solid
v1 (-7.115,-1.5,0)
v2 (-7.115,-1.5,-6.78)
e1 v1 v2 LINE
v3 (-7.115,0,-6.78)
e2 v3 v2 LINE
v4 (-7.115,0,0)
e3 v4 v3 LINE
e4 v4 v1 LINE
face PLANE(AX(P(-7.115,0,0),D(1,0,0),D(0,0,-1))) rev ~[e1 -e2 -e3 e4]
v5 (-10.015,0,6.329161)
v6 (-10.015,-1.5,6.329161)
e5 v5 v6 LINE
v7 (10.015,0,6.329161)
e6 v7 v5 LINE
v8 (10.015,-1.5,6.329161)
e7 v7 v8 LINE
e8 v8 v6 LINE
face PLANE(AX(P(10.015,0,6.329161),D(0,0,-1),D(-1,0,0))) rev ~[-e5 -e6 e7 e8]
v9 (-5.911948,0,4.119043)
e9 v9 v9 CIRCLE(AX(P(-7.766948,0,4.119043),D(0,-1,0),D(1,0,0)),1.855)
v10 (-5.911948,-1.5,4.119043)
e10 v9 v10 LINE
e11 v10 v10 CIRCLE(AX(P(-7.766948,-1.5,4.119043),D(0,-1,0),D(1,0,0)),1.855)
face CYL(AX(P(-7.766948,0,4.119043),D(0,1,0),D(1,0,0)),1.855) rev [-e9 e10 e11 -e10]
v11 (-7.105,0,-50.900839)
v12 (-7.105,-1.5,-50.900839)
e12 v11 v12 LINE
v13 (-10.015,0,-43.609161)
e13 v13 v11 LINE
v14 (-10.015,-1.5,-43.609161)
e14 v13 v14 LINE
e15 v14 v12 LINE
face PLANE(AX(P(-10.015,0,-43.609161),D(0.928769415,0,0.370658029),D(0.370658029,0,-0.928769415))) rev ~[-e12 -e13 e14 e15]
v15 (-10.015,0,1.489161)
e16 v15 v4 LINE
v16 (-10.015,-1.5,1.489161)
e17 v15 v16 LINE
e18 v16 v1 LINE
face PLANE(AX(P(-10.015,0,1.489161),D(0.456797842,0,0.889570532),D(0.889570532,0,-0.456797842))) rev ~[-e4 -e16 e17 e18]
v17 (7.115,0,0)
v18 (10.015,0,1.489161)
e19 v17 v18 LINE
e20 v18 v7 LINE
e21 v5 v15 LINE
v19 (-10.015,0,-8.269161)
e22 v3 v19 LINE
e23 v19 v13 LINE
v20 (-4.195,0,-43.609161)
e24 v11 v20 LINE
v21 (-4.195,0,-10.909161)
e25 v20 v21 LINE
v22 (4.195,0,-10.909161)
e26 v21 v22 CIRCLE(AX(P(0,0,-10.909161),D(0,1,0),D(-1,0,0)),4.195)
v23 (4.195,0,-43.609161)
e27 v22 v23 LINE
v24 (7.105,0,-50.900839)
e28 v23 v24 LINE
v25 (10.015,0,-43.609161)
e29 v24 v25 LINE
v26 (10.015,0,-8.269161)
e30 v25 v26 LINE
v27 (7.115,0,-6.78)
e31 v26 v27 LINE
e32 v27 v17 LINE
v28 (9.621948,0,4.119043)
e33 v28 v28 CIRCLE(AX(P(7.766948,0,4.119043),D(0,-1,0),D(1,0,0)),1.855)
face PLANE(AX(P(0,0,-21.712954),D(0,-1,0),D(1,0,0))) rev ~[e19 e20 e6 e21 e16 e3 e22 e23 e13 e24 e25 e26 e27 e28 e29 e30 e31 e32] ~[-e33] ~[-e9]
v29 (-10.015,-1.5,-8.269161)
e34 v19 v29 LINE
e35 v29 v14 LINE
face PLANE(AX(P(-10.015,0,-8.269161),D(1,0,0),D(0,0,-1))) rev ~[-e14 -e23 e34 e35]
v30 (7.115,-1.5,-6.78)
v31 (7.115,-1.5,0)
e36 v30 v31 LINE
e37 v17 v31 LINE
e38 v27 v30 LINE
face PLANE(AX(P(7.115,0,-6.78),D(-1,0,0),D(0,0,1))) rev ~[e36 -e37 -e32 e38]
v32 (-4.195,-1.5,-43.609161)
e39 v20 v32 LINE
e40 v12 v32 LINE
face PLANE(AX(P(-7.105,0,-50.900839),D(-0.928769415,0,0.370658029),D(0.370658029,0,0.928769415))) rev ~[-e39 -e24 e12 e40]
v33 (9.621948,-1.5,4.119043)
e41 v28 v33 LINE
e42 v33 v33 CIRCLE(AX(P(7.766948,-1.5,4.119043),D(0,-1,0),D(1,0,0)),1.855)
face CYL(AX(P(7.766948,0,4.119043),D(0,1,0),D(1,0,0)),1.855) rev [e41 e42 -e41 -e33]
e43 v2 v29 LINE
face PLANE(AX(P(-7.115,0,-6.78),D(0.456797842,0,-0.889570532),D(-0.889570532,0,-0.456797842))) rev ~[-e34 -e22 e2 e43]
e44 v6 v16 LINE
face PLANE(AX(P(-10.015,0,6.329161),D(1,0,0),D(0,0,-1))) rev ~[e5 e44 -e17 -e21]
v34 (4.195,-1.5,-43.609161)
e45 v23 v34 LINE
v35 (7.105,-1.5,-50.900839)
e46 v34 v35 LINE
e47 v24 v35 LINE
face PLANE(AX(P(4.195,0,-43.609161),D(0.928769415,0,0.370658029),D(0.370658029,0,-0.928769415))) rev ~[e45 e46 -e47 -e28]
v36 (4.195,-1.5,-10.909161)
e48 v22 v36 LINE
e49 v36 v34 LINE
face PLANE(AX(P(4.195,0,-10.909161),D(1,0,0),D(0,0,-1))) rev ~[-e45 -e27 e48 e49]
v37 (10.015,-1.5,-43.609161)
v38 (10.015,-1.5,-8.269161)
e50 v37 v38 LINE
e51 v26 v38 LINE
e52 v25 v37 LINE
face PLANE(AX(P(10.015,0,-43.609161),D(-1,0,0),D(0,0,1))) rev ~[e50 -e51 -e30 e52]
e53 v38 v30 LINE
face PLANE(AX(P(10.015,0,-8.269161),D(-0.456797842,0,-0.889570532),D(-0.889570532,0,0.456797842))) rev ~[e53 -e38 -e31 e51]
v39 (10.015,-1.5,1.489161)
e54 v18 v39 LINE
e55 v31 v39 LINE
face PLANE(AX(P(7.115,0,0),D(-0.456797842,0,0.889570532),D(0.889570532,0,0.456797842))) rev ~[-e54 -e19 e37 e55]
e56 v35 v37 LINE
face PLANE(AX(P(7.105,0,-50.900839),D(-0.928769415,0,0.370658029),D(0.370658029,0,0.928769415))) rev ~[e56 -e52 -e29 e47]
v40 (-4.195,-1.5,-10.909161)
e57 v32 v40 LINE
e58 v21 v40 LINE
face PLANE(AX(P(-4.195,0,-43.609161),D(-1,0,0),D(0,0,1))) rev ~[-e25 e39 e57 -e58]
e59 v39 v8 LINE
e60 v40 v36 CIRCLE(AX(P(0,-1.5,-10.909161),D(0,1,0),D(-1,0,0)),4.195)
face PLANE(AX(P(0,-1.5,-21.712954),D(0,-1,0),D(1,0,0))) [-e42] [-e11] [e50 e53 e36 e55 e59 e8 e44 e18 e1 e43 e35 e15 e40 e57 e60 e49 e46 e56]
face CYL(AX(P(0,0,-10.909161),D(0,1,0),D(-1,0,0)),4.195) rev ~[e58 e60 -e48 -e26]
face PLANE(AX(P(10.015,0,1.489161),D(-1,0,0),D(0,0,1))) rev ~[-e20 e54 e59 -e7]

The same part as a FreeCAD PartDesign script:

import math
import FreeCAD as App
import Part
import Sketcher

doc = App.newDocument("Part")
body = doc.addObject("PartDesign::Body", "Body")

# Sketch on XZ plane
sketch1 = body.newObject("Sketcher::SketchObject", "Sketch")
sketch1.AttachmentSupport = (doc.getObject("XZ_Plane"), [""])
sketch1.MapMode = "FlatFace"
sketch1.addGeometry([
    Part.LineSegment(App.Vector(10, 6.3, 0), App.Vector(-10, 6.3, 0)),  # 0
    Part.LineSegment(App.Vector(-10, 6.3, 0), App.Vector(-10, 1.5, 0)),  # 1
    Part.LineSegment(App.Vector(-10, 1.5, 0), App.Vector(-7.1, 0, 0)),  # 2
    Part.LineSegment(App.Vector(-7.1, 0, 0), App.Vector(-7.1, -6.8, 0)),  # 3
    Part.LineSegment(App.Vector(-7.1, -6.8, 0), App.Vector(-10, -8.3, 0)),  # 4
    Part.LineSegment(App.Vector(-10, -8.3, 0), App.Vector(-10, -43.6, 0)),  # 5
    Part.LineSegment(App.Vector(-10, -43.6, 0), App.Vector(-7.1, -50.9, 0)),  # 6
    Part.LineSegment(App.Vector(-7.1, -50.9, 0), App.Vector(-4.2, -43.6, 0)),  # 7
    Part.LineSegment(App.Vector(-4.2, -43.6, 0), App.Vector(-4.2, -10.9, 0)),  # 8
    Part.ArcOfCircle(Part.Circle(App.Vector(0, -10.9, 0), App.Vector(0, 0, 1), 4.2), math.radians(0), math.radians(180)),  # 9
    Part.LineSegment(App.Vector(4.2, -10.9, 0), App.Vector(4.2, -43.6, 0)),  # 10
    Part.LineSegment(App.Vector(4.2, -43.6, 0), App.Vector(7.1, -50.9, 0)),  # 11
    Part.LineSegment(App.Vector(7.1, -50.9, 0), App.Vector(10, -43.6, 0)),  # 12
    Part.LineSegment(App.Vector(10, -43.6, 0), App.Vector(10, -8.3, 0)),  # 13
    Part.LineSegment(App.Vector(10, -8.3, 0), App.Vector(7.1, -6.8, 0)),  # 14
    Part.LineSegment(App.Vector(7.1, -6.8, 0), App.Vector(7.1, 0, 0)),  # 15
    Part.LineSegment(App.Vector(7.1, 0, 0), App.Vector(10, 1.5, 0)),  # 16
    Part.LineSegment(App.Vector(10, 1.5, 0), App.Vector(10, 6.3, 0)),  # 17
    Part.Circle(App.Vector(-7.8, 4.1, 0), App.Vector(0, 0, 1), 1.9),  # 18
    Part.Circle(App.Vector(7.8, 4.1, 0), App.Vector(0, 0, 1), 1.9),  # 19
], False)
sketch1.addConstraint([
    Sketcher.Constraint("Coincident", 0, 2, 1, 1),
    Sketcher.Constraint("Coincident", 1, 2, 2, 1),
    Sketcher.Constraint("Coincident", 2, 2, 3, 1),
    Sketcher.Constraint("Coincident", 3, 2, 4, 1),
    Sketcher.Constraint("Coincident", 4, 2, 5, 1),
    Sketcher.Constraint("Coincident", 5, 2, 6, 1),
    Sketcher.Constraint("Coincident", 6, 2, 7, 1),
    Sketcher.Constraint("Coincident", 7, 2, 8, 1),
    Sketcher.Constraint("Tangent", 8, 2, 9, 2),
    Sketcher.Constraint("Tangent", 9, 1, 10, 1),
    Sketcher.Constraint("Coincident", 10, 2, 11, 1),
    Sketcher.Constraint("Coincident", 11, 2, 12, 1),
    Sketcher.Constraint("Coincident", 12, 2, 13, 1),
    Sketcher.Constraint("Coincident", 13, 2, 14, 1),
    Sketcher.Constraint("Coincident", 14, 2, 15, 1),
    Sketcher.Constraint("Coincident", 15, 2, 16, 1),
    Sketcher.Constraint("Coincident", 16, 2, 17, 1),
    Sketcher.Constraint("Coincident", 17, 2, 0, 1),
    Sketcher.Constraint("Horizontal", 0),
    Sketcher.Constraint("Vertical", 1),
    Sketcher.Constraint("Vertical", 3),
    Sketcher.Constraint("Vertical", 5),
    Sketcher.Constraint("Vertical", 8),
    Sketcher.Constraint("Vertical", 10),
    Sketcher.Constraint("Vertical", 13),
    Sketcher.Constraint("Vertical", 15),
    Sketcher.Constraint("Vertical", 17),
    Sketcher.Constraint("Equal", 18, 19),
    Sketcher.Constraint("Symmetric", 2, 2, 15, 2, -1, 1),
    Sketcher.Constraint("Symmetric", 18, 3, 19, 3, -2),
    Sketcher.Constraint("Symmetric", 7, 2, 10, 2, -2),
    Sketcher.Constraint("Symmetric", 6, 2, 11, 2, -2),
    Sketcher.Constraint("Symmetric", 5, 2, 12, 2, -2),
    Sketcher.Constraint("Symmetric", 1, 2, 16, 2, -2),
    Sketcher.Constraint("PointOnObject", 2, 2, -1),
    Sketcher.Constraint("Parallel", 6, 11),
    Sketcher.Constraint("Parallel", 2, 14),
    Sketcher.Constraint("Parallel", 4, 16),
    Sketcher.Constraint("Horizontal", 5, 2, 7, 2),
    Sketcher.Constraint("Horizontal", 4, 2, 13, 2),
    Sketcher.Constraint("Vertical", 1, 2, 4, 2),
    Sketcher.Constraint("Diameter", 18, 3.71),
    Sketcher.Constraint("DistanceY", 8, 1, 8, 2, 32.7),
    Sketcher.Constraint("Radius", 9, 4.195),
    Sketcher.Constraint("DistanceX", 0, 2, 0, 1, 20.03),
    Sketcher.Constraint("DistanceY", 1, 2, 1, 1, 4.84),
    Sketcher.Constraint("DistanceY", 3, 2, 3, 1, 6.78),
    Sketcher.Constraint("DistanceY", 5, 2, 5, 1, 35.34),
    Sketcher.Constraint("DistanceX", 1, 2, 2, 2, 2.9),
    Sketcher.Constraint("Distance", 2, 3.26),
    Sketcher.Constraint("DistanceX", 18, 3, -1, 1, 7.766948),
    Sketcher.Constraint("DistanceY", 6, 2, -1, 1, 50.900839),
    Sketcher.Constraint("DistanceY", 18, 3, 0, 2, 2.210118),
])
pad1 = body.newObject("PartDesign::Pad", "Pad")
pad1.Profile = sketch1
pad1.Length = 1.5

doc.recompute()
